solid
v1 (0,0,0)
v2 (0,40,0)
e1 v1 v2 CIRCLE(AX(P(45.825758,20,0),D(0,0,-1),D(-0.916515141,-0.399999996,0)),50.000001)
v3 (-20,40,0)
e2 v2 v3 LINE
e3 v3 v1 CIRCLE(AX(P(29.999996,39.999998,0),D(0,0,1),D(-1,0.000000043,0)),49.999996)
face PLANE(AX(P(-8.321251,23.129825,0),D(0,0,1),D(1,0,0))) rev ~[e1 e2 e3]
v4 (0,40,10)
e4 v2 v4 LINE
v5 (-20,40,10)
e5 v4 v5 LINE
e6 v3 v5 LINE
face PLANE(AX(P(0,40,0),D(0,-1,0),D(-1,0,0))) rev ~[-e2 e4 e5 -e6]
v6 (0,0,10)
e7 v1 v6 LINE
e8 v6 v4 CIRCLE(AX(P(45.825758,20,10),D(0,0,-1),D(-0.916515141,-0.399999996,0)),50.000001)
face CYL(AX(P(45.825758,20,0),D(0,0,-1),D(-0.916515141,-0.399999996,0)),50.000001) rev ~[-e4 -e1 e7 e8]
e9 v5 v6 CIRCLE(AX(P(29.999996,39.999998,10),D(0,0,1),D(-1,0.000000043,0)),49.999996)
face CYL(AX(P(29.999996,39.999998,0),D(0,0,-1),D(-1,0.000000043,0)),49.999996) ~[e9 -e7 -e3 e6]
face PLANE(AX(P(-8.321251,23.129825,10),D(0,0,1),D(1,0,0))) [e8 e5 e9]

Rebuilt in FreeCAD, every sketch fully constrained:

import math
import FreeCAD as App
import Part
import Sketcher
from FreeCAD import Vector

doc = App.newDocument("Part")
params = doc.addObject("Spreadsheet::Sheet", "Params")
for row, (alias, value) in enumerate([
    ("sketch1_radius", "50.000001 mm"),
    ("sketch1_width", "20 mm"),
    ("pad1_length", "10 mm"),
], start=1):
    params.set(f"A{row}", alias)
    params.set(f"B{row}", "=" + value)
    params.setAlias(f"B{row}", alias)

body = doc.addObject("PartDesign::Body", "Body")

# Sketch on XY plane
sketch1 = body.newObject("Sketcher::SketchObject", "Sketch")
sketch1.AttachmentSupport = (doc.getObject("XY_Plane"), [""])
sketch1.MapMode = "FlatFace"
sketch1.addGeometry(Part.ArcOfCircle(Part.Circle(Vector(46, 20, 0), Vector(0, 0, 1), 50), math.radians(156), math.radians(204)), False)
sketch1.addGeometry(Part.LineSegment(Vector(0, 40, 0), Vector(-20, 40, 0)), False)
sketch1.addGeometry(Part.ArcOfCircle(Part.Circle(Vector(30, 40, 0), Vector(0, 0, 1), 50), math.radians(180), math.radians(233)), False)
sketch1.addConstraint(Sketcher.Constraint("Coincident", 0, 1, 1, 1))
sketch1.addConstraint(Sketcher.Constraint("Coincident", 1, 2, 2, 1))
sketch1.addConstraint(Sketcher.Constraint("Coincident", 2, 2, 0, 2))
sketch1.addConstraint(Sketcher.Constraint("Horizontal", 1))
sketch1.addConstraint(Sketcher.Constraint("Coincident", 2, 2, -1, 1))
sketch1.addConstraint(Sketcher.Constraint("PointOnObject", 0, 1, -2))
sketch1.addConstraint(Sketcher.Constraint("Radius", 0, 50.000001))
sketch1.addConstraint(Sketcher.Constraint("DistanceX", 1, 2, 1, 1, 20.0))
sketch1.addConstraint(Sketcher.Constraint("DistanceY", -1, 1, 0, 3, 20.0))
sketch1.addConstraint(Sketcher.Constraint("Radius", 2, 49.999996))
sketch1.setExpression("Constraints[6]", "Params.sketch1_radius")
sketch1.setExpression("Constraints[7]", "Params.sketch1_width")
pad1 = body.newObject("PartDesign::Pad", "Pad")
pad1.Profile = sketch1
pad1.setExpression("Length", "Params.pad1_length")

doc.recompute()
